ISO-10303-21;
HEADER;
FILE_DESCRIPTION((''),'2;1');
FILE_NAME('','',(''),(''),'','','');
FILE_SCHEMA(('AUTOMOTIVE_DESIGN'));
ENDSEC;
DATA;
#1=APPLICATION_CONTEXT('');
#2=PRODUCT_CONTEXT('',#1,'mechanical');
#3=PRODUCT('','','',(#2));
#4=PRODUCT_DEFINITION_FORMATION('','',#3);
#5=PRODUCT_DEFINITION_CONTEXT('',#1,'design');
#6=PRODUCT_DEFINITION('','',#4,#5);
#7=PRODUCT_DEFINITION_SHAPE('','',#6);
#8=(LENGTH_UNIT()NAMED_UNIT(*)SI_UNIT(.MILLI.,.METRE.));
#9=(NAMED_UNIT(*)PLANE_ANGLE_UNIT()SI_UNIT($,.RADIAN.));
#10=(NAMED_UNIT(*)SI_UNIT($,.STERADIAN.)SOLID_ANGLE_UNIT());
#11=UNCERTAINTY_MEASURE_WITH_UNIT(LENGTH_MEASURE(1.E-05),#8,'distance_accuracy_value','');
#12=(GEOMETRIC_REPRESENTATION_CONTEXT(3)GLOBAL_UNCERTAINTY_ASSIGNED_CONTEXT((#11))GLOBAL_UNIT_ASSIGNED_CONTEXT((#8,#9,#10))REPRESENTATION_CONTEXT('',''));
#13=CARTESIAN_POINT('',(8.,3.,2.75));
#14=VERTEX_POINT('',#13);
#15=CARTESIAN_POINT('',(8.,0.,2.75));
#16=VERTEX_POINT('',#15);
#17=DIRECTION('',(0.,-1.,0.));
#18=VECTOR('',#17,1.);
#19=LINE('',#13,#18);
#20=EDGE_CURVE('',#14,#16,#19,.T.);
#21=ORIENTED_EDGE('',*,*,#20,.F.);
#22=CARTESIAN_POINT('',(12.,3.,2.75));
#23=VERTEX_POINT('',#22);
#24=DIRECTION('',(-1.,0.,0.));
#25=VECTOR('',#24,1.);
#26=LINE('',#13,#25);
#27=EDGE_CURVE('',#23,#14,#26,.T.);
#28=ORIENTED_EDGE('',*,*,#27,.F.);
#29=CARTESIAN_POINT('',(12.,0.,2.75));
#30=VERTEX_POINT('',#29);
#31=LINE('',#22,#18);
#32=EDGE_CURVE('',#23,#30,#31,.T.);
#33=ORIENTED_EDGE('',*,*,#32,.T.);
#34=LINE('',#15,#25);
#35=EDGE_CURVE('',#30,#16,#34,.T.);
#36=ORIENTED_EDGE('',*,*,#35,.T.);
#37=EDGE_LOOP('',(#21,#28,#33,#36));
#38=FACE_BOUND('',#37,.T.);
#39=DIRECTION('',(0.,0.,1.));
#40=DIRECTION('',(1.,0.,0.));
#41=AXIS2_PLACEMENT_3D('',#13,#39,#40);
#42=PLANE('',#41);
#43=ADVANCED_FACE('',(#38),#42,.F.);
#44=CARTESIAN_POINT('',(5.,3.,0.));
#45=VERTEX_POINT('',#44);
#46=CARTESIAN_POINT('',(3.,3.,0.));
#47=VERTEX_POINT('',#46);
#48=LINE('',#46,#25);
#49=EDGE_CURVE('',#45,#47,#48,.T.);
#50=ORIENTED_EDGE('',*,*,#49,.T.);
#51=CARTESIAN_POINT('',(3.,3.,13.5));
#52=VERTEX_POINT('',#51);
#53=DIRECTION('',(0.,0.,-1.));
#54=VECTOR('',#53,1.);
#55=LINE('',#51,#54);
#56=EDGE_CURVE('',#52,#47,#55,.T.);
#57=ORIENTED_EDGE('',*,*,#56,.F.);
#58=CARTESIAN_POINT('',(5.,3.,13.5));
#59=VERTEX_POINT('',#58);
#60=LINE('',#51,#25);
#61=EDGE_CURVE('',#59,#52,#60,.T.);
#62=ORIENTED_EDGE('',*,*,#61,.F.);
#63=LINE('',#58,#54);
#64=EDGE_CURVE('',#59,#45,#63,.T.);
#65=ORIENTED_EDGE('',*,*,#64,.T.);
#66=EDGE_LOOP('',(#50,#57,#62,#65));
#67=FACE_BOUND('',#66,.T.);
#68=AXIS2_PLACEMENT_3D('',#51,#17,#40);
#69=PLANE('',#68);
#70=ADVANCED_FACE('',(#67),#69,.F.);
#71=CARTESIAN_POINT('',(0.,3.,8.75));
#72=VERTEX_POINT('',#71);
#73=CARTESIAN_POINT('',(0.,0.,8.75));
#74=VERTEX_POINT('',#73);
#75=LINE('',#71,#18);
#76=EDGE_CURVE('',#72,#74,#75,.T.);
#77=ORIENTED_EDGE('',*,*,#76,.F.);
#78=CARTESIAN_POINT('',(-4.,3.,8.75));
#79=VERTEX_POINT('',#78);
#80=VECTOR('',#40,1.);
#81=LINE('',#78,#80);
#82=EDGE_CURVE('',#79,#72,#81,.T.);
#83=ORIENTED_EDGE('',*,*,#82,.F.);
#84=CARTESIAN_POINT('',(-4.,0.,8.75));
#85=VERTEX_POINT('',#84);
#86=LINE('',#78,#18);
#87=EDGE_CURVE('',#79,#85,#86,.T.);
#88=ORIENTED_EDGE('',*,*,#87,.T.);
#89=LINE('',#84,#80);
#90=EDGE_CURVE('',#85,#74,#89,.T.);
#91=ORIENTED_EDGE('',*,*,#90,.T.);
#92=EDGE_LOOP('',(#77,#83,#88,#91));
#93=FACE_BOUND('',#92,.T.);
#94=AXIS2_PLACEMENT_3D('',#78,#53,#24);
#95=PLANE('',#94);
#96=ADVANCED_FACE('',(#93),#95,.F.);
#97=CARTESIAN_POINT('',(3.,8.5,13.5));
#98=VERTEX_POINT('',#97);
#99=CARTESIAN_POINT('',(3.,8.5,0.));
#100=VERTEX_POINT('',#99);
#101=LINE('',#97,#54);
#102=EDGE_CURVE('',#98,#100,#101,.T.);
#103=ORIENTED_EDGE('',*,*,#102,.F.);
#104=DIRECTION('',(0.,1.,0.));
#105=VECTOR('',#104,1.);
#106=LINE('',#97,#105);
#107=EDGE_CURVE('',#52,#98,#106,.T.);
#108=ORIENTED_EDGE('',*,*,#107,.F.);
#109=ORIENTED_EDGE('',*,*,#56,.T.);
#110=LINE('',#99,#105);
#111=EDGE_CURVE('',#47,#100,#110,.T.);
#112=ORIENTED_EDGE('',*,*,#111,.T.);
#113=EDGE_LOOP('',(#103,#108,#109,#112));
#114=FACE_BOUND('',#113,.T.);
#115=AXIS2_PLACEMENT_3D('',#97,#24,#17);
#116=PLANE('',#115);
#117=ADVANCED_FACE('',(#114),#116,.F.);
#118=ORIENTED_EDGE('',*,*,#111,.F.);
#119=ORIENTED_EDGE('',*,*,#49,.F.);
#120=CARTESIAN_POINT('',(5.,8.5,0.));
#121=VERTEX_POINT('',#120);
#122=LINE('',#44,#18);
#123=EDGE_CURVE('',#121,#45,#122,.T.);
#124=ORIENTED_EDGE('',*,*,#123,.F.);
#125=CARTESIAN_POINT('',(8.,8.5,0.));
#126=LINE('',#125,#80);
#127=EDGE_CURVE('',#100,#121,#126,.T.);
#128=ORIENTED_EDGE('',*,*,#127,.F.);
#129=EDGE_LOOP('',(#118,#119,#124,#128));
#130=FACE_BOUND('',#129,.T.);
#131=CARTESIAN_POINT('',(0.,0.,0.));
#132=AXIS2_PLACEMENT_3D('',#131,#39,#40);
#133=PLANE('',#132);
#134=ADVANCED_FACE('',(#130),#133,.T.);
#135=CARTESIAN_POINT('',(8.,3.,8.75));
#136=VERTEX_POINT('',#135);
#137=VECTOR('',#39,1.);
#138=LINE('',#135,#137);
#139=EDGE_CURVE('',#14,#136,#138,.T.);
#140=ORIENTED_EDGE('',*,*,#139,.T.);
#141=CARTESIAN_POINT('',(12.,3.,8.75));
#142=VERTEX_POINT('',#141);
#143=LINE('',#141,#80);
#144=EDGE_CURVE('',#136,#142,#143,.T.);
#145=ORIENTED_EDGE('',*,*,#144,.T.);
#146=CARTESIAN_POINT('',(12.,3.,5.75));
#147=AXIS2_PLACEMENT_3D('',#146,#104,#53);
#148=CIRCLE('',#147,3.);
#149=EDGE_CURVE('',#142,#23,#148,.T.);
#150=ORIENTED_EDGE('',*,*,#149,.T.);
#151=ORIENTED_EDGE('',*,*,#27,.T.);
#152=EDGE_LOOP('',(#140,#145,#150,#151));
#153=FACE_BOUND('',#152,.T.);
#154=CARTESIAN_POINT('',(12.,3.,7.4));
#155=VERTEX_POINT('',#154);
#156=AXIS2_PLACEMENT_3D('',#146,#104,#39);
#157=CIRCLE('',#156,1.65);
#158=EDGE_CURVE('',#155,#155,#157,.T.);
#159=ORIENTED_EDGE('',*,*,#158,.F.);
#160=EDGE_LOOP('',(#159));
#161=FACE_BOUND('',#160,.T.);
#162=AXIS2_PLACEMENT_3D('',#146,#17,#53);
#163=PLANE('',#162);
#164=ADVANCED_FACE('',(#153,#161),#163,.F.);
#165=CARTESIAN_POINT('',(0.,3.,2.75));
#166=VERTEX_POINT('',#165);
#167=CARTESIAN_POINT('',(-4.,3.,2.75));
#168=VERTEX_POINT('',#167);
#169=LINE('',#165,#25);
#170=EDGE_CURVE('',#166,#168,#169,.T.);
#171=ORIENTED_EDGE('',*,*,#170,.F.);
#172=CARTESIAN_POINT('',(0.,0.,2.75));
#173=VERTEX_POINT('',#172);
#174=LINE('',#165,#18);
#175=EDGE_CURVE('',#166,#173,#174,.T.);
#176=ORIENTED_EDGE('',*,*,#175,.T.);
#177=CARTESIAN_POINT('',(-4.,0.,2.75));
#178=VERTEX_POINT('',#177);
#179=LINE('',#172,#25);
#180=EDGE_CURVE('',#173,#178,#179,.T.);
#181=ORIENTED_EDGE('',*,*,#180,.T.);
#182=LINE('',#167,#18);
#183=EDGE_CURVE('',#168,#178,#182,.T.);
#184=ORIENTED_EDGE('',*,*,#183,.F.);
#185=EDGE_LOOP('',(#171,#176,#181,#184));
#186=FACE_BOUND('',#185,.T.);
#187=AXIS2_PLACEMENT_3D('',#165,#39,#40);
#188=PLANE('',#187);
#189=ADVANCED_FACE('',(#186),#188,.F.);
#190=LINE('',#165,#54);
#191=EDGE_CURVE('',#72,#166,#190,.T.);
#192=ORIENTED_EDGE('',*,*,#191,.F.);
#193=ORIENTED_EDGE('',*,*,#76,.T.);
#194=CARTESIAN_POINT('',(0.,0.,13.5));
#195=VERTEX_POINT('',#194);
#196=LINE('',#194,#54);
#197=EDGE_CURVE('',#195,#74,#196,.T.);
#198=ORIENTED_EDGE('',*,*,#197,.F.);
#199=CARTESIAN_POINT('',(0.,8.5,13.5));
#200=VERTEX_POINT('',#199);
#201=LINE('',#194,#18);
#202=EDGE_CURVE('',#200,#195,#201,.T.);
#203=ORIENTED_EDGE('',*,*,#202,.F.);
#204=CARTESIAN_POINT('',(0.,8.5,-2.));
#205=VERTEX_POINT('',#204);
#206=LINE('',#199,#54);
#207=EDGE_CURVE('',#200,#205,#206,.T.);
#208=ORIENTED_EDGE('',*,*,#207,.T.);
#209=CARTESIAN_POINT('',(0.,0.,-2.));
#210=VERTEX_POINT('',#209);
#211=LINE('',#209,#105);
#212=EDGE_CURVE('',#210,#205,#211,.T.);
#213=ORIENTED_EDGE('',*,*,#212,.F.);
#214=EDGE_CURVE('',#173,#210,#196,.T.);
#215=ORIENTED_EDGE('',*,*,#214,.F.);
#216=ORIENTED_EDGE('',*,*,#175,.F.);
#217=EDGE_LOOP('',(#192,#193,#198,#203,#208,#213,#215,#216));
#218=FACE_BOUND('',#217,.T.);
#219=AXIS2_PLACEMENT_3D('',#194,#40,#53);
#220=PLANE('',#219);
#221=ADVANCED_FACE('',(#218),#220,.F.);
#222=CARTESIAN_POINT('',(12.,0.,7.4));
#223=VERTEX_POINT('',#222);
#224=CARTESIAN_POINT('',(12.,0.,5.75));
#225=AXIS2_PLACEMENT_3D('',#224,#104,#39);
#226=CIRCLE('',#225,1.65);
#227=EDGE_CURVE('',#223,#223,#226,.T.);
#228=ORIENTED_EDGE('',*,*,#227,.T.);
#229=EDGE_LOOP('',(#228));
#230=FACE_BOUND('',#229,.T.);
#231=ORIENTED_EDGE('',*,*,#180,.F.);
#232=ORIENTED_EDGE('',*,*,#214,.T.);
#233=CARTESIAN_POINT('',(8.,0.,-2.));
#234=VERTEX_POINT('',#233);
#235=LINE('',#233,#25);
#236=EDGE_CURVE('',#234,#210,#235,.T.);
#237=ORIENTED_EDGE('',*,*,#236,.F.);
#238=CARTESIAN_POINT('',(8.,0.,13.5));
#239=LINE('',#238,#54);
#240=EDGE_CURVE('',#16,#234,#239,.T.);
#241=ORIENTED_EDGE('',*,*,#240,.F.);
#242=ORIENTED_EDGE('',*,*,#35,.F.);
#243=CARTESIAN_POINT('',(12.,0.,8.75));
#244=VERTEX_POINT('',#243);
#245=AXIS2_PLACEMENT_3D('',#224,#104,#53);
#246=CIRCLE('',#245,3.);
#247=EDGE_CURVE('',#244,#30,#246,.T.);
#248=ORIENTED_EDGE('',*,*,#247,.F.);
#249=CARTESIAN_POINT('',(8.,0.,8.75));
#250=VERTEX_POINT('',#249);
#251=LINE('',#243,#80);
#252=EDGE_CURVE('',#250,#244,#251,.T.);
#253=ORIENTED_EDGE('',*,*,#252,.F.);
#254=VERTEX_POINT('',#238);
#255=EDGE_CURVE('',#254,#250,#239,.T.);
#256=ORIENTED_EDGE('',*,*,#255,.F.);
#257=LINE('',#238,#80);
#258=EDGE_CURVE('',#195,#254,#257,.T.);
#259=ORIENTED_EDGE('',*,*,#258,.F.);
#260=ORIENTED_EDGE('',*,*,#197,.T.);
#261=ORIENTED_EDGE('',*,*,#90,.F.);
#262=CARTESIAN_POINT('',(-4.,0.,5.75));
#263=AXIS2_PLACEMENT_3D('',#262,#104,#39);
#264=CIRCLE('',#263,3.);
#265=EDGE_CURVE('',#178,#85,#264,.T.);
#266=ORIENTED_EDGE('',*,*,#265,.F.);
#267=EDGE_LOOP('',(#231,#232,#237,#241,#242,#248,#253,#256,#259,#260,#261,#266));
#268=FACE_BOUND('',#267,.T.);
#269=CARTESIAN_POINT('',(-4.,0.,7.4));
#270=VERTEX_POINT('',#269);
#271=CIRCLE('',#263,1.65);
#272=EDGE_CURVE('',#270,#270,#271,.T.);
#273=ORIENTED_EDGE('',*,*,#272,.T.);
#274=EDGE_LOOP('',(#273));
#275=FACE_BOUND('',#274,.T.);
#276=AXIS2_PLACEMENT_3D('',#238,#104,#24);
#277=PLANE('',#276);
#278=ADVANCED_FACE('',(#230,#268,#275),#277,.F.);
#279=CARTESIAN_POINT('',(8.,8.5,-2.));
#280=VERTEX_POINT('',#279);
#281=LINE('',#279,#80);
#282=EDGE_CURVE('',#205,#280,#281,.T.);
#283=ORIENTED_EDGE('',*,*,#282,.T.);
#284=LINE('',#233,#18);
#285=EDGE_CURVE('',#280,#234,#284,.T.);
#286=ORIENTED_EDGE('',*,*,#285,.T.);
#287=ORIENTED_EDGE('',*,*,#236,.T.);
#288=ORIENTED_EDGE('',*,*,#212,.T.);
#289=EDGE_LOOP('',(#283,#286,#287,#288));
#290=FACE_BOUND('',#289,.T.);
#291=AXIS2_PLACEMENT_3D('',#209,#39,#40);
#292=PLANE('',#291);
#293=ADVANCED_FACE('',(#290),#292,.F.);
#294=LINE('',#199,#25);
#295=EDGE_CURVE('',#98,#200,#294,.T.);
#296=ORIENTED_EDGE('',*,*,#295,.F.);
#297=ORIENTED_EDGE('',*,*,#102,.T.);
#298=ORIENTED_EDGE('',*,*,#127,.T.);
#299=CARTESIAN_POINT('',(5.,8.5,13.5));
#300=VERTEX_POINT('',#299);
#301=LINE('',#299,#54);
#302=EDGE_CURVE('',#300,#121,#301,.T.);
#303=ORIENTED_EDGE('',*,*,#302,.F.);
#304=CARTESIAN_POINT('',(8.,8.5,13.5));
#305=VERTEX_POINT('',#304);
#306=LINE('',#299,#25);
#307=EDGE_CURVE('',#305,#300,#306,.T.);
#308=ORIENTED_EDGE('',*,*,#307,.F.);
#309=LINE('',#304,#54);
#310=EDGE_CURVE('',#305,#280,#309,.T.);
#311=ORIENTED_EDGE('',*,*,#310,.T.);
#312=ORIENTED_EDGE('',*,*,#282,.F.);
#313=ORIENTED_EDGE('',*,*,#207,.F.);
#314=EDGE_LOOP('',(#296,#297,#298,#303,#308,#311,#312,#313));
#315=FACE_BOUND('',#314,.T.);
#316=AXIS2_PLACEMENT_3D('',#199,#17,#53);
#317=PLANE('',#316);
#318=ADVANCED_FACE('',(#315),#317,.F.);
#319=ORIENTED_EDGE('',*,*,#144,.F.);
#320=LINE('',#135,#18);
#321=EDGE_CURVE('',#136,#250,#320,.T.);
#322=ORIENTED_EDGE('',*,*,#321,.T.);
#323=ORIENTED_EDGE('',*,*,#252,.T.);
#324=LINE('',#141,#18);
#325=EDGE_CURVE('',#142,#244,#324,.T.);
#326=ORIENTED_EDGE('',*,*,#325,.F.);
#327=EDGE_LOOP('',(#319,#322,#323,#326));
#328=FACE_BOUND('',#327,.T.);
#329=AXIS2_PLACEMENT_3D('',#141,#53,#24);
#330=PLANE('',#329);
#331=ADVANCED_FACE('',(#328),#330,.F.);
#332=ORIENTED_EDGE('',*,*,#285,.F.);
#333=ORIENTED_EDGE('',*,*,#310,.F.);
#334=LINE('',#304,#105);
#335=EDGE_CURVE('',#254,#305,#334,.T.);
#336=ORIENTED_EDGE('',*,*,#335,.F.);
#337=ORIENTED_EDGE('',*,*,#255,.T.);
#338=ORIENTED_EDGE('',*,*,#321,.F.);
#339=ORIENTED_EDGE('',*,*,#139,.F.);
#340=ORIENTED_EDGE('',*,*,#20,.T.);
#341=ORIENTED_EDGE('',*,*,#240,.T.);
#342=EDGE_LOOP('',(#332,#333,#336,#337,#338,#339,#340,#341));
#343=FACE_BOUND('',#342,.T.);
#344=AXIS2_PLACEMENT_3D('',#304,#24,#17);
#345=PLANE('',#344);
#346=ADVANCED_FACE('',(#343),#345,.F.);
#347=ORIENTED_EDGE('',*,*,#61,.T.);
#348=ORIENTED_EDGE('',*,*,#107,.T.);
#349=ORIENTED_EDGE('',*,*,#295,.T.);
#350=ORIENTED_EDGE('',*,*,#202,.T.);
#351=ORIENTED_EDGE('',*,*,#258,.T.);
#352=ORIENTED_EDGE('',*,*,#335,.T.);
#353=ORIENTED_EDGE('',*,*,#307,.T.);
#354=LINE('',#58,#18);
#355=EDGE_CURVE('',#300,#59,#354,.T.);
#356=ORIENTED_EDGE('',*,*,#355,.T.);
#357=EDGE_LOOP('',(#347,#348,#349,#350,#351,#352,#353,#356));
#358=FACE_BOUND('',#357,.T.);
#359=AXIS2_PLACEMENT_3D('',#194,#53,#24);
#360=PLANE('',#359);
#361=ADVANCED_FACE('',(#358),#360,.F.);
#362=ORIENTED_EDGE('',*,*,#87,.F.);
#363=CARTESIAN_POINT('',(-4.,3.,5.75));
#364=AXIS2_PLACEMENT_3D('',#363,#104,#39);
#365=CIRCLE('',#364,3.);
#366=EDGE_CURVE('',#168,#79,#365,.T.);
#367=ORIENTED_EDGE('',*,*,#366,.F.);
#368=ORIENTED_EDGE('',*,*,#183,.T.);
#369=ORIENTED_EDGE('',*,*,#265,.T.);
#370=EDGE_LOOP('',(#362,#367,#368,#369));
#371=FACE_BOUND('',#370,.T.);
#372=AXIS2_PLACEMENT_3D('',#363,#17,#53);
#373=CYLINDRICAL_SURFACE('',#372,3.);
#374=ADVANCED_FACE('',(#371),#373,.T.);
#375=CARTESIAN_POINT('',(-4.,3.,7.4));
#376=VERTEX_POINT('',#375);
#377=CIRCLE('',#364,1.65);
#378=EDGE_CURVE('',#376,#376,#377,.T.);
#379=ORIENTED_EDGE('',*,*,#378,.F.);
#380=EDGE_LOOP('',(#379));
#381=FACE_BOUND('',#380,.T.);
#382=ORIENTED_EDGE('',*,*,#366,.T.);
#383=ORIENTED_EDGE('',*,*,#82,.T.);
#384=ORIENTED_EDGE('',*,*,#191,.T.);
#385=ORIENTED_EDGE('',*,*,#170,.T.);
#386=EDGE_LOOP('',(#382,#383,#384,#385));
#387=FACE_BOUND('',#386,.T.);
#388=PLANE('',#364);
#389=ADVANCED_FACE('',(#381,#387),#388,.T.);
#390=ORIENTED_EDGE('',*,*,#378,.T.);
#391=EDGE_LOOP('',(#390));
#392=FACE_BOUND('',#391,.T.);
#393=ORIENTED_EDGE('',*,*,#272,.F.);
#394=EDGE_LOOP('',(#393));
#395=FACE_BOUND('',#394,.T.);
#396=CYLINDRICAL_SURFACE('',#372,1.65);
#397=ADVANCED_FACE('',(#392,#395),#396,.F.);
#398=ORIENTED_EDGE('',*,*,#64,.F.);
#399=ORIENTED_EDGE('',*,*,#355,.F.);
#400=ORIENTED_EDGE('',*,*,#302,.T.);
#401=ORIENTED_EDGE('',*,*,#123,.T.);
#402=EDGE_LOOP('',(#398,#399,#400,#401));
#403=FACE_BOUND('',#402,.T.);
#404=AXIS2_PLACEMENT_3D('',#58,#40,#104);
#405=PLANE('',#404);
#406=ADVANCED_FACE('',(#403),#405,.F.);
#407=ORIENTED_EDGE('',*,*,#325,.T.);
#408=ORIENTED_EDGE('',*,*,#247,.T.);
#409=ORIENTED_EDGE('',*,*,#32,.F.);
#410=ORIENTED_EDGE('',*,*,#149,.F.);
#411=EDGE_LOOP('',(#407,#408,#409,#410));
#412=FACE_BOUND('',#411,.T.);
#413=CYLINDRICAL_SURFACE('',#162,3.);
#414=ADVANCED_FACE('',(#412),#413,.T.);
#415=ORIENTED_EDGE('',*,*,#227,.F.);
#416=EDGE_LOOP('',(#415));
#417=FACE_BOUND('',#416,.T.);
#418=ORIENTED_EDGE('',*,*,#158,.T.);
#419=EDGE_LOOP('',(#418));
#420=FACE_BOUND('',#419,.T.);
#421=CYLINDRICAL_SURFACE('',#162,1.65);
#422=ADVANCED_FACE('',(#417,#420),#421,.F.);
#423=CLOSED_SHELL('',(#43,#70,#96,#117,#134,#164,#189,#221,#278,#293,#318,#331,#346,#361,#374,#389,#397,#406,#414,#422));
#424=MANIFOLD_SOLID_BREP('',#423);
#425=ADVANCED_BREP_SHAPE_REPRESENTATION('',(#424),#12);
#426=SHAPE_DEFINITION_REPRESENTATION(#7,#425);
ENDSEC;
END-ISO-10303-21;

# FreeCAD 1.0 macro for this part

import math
import FreeCAD as App
import Part
import Sketcher

V = App.Vector
Q = App.Units.Quantity

doc = App.newDocument("Part")
body = doc.addObject("PartDesign::Body", "Body")

# Sketch on XY plane
sketch1 = body.newObject("Sketcher::SketchObject", "Sketch")
sketch1.AttachmentSupport = (doc.getObject("XY_Plane"), [""])
sketch1.MapMode = "FlatFace"
sketch1.addGeometry([
    Part.LineSegment(V(0, 8.5, 0), V(0, 0, 0)),  # 0
    Part.LineSegment(V(0, 0, 0), V(8, 0, 0)),  # 1
    Part.LineSegment(V(8, 0, 0), V(8, 8.5, 0)),  # 2
    Part.LineSegment(V(8, 8.5, 0), V(5, 8.5, 0)),  # 3
    Part.LineSegment(V(5, 8.5, 0), V(5, 3, 0)),  # 4
    Part.LineSegment(V(5, 3, 0), V(3, 3, 0)),  # 5
    Part.LineSegment(V(3, 3, 0), V(3, 8.5, 0)),  # 6
    Part.LineSegment(V(3, 8.5, 0), V(0, 8.5, 0)),  # 7
], False)
sketch1.addConstraint([
    Sketcher.Constraint("Coincident", 0, 2, 1, 1),
    Sketcher.Constraint("Coincident", 1, 2, 2, 1),
    Sketcher.Constraint("Coincident", 2, 2, 3, 1),
    Sketcher.Constraint("Coincident", 3, 2, 4, 1),
    Sketcher.Constraint("Coincident", 4, 2, 5, 1),
    Sketcher.Constraint("Coincident", 5, 2, 6, 1),
    Sketcher.Constraint("Coincident", 6, 2, 7, 1),
    Sketcher.Constraint("Coincident", 7, 2, 0, 1),
    Sketcher.Constraint("Vertical", 0),
    Sketcher.Constraint("Horizontal", 1),
    Sketcher.Constraint("Vertical", 2),
    Sketcher.Constraint("Horizontal", 3),
    Sketcher.Constraint("Vertical", 4),
    Sketcher.Constraint("Horizontal", 5),
    Sketcher.Constraint("Vertical", 6),
    Sketcher.Constraint("Horizontal", 7),
    Sketcher.Constraint("Coincident", 0, 2, -1, 1),
    Sketcher.Constraint("Horizontal", 3, 2, 6, 2),
    Sketcher.Constraint("Equal", 3, 7),
    Sketcher.Constraint("DistanceX", 1, 1, 1, 2, Q("8 mm")),
    Sketcher.Constraint("DistanceX", 3, 2, 3, 1, Q("3 mm")),
    Sketcher.Constraint("DistanceY", 0, 2, 0, 1, Q("8.5 mm")),
    Sketcher.Constraint("DistanceY", 4, 2, 4, 1, Q("5.5 mm")),
])
pad1 = body.newObject("PartDesign::Pad", "Pad")
pad1.Profile = sketch1
pad1.Length = 13.5

# Sketch on XY plane
sketch2 = body.newObject("Sketcher::SketchObject", "Sketch001")
sketch2.AttachmentSupport = (doc.getObject("XY_Plane"), [""])
sketch2.MapMode = "FlatFace"
sketch2.addGeometry([
    Part.LineSegment(V(8, 8, 0), V(8, 0, 0)),
    Part.LineSegment(V(8, 0, 0), V(0, 0, 0)),
    Part.LineSegment(V(0, 0, 0), V(0, 8, 0)),
    Part.LineSegment(V(0, 8, 0), V(8, 8, 0)),
], False)
sketch2.addConstraint([
    Sketcher.Constraint("Coincident", 0, 2, 1, 1),
    Sketcher.Constraint("Coincident", 1, 2, 2, 1),
    Sketcher.Constraint("Coincident", 2, 2, 3, 1),
    Sketcher.Constraint("Coincident", 3, 2, 0, 1),
    Sketcher.Constraint("Vertical", 0),
    Sketcher.Constraint("Horizontal", 1),
    Sketcher.Constraint("Vertical", 2),
    Sketcher.Constraint("Horizontal", 3),
    Sketcher.Constraint("Coincident", 1, 2, -1, 1),
    Sketcher.Constraint("DistanceX", 1, 2, 1, 1, Q("8 mm")),
    Sketcher.Constraint("DistanceY", 0, 2, 0, 1, Q("8.5 mm")),
])
pad2 = body.newObject("PartDesign::Pad", "Pad001")
pad2.Profile = sketch2
pad2.Length = 2
pad2.Reversed = True

# Sketch on XZ plane
sketch3 = body.newObject("Sketcher::SketchObject", "Sketch002")
sketch3.AttachmentSupport = (doc.getObject("XZ_Plane"), [""])
sketch3.MapMode = "FlatFace"
sketch3.addGeometry([
    Part.LineSegment(V(0, 2.8, 0), V(-4, 2.8, 0)),  # 0
    Part.ArcOfCircle(Part.Circle(V(-4, 5.8, 0), V(0, 0, 1), 3), math.radians(90), math.radians(270)),  # 1
    Part.LineSegment(V(-4, 8.8, 0), V(0, 8.8, 0)),  # 2
    Part.LineSegment(V(0, 8.8, 0), V(0, 2.8, 0)),  # 3
    Part.Circle(V(-4, 5.8, 0), V(0, 0, 1), 1.6),  # 4
    Part.LineSegment(V(12, 2.8, 0), V(8, 2.8, 0)),  # 5
    Part.LineSegment(V(8, 2.8, 0), V(8, 8.8, 0)),  # 6
    Part.LineSegment(V(8, 8.8, 0), V(12, 8.8, 0)),  # 7
    Part.ArcOfCircle(Part.Circle(V(12, 5.8, 0), V(0, 0, 1), 3), math.radians(-90), math.radians(90)),  # 8
    Part.Circle(V(12, 5.8, 0), V(0, 0, 1), 1.6),  # 9
], False)
sketch3.addConstraint([
    Sketcher.Constraint("Tangent", 0, 2, 1, 2),
    Sketcher.Constraint("Tangent", 1, 1, 2, 1),
    Sketcher.Constraint("Coincident", 2, 2, 3, 1),
    Sketcher.Constraint("Coincident", 3, 2, 0, 1),
    Sketcher.Constraint("Coincident", 5, 2, 6, 1),
    Sketcher.Constraint("Coincident", 6, 2, 7, 1),
    Sketcher.Constraint("Tangent", 7, 2, 8, 2),
    Sketcher.Constraint("Tangent", 8, 1, 5, 1),
    Sketcher.Constraint("Horizontal", 0),
    Sketcher.Constraint("Horizontal", 2),
    Sketcher.Constraint("Vertical", 3),
    Sketcher.Constraint("Horizontal", 5),
    Sketcher.Constraint("Vertical", 6),
    Sketcher.Constraint("Horizontal", 7),
    Sketcher.Constraint("Coincident", 4, 3, 1, 3),
    Sketcher.Constraint("Coincident", 9, 3, 8, 3),
    Sketcher.Constraint("Equal", 1, 8),
    Sketcher.Constraint("Equal", 4, 9),
    Sketcher.Constraint("PointOnObject", 2, 2, -2),
    Sketcher.Constraint("Horizontal", 4, 3, 8, 3),
    Sketcher.Constraint("Equal", 2, 5),
    Sketcher.Constraint("Radius", 1, Q("3 mm")),
    Sketcher.Constraint("Diameter", 4, Q("3.3 mm")),
    Sketcher.Constraint("DistanceX", 0, 2, 0, 1, Q("4 mm")),
    Sketcher.Constraint("DistanceX", -1, 1, 8, 3, Q("12 mm")),
    Sketcher.Constraint("DistanceY", -1, 1, 1, 3, Q("5.75 mm")),
])
pad3 = body.newObject("PartDesign::Pad", "Pad002")
pad3.Profile = sketch3
pad3.Length = 3
pad3.Reversed = True

doc.recompute()
